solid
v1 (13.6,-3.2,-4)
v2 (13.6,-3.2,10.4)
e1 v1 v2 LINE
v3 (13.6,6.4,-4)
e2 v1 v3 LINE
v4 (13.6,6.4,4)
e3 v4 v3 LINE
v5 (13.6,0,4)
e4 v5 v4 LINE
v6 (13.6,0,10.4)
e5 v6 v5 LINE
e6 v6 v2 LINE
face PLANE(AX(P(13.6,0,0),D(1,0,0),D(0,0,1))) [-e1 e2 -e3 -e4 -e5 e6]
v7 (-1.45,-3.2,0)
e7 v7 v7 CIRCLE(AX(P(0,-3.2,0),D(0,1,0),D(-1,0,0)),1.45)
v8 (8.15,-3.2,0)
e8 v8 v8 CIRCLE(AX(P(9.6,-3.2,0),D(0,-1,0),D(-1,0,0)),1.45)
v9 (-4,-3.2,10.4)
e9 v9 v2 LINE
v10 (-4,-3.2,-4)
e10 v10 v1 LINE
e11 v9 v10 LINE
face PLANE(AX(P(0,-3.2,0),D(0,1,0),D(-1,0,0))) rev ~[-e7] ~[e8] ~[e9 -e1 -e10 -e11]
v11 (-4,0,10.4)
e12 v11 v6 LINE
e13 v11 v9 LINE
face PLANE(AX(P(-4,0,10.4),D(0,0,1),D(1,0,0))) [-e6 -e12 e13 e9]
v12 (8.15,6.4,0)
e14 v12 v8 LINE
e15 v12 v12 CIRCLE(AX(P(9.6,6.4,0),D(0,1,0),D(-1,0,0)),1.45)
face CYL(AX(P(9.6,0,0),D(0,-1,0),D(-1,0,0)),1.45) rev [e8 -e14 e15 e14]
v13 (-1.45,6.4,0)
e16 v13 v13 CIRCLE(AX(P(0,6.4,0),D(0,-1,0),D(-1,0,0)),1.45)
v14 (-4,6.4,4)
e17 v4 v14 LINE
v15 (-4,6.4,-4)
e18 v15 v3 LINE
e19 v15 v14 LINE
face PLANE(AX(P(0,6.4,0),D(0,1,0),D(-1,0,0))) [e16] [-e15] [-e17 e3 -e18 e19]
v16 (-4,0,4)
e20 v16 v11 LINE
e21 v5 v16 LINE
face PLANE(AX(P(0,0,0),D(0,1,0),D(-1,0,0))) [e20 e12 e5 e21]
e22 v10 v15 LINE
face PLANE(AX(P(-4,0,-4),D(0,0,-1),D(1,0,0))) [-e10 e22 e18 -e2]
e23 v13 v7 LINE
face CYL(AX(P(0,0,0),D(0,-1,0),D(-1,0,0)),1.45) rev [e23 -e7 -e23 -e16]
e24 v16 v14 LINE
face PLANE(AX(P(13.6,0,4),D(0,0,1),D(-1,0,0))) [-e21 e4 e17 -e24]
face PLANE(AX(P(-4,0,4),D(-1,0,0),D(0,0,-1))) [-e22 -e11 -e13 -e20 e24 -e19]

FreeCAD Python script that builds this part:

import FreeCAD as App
import Part
import Sketcher

V = App.Vector


def add_polygon(sketch, points):
    """Adds a closed chain of lines whose ends are joined by coincident constraints."""
    first, n = sketch.GeometryCount, len(points)
    for a, b in zip(points, points[1:] + points[:1]):
        sketch.addGeometry(Part.LineSegment(App.Vector(*a, 0), App.Vector(*b, 0)), False)
    for i in range(n):
        sketch.addConstraint(Sketcher.Constraint("Coincident", first + i, 2, first + (i + 1) % n, 1))

doc = App.newDocument("Part")
body = doc.addObject("PartDesign::Body", "Body")

sketch1 = doc.addObject("Sketcher::SketchObject", "Sketch")
body.addObject(sketch1)
sketch1.AttachmentSupport = (doc.XZ_Plane, [""])
sketch1.MapMode = "FlatFace"
add_polygon(sketch1, [(13.6, 4), (13.6, -4), (-4, -4), (-4, 4)])
sketch1.addGeometry(Part.Circle(V(9.6, 0, 0), V(0, 0, 1), 1.45), False)
sketch1.addGeometry(Part.Circle(V(0, 0, 0), V(0, 0, 1), 1.45), False)
sketch1.addConstraint([
    Sketcher.Constraint("Vertical", 0),
    Sketcher.Constraint("Horizontal", 1),
    Sketcher.Constraint("Vertical", 2),
    Sketcher.Constraint("Horizontal", 3),
    Sketcher.Constraint("Coincident", 5, 3, -1, 1),
    Sketcher.Constraint("Equal", 4, 5),
    Sketcher.Constraint("PointOnObject", 4, 3, -1),
    Sketcher.Constraint("Diameter", 4, 2.9),
    Sketcher.Constraint("DistanceY", 0, 2, -1, 1, 4.0),
    Sketcher.Constraint("DistanceX", 1, 2, -1, 1, 4.0),
    Sketcher.Constraint("DistanceY", -1, 1, 2, 2, 4.0),
    Sketcher.Constraint("DistanceX", 4, 3, 0, 2, 4.0),
    Sketcher.Constraint("DistanceX", -1, 1, 4, 3, 9.6),
])
pad1 = doc.addObject("PartDesign::Pad", "Pad")
body.addObject(pad1)
pad1.Profile = sketch1
pad1.Length = 6.4
pad1.Reversed = True

sketch2 = doc.addObject("Sketcher::SketchObject", "Sketch001")
body.addObject(sketch2)
sketch2.AttachmentSupport = (doc.XZ_Plane, [""])
sketch2.MapMode = "FlatFace"
add_polygon(sketch2, [(13.6, -4), (-4, -4), (-4, 10.4), (13.6, 10.4)])
sketch2.addGeometry(Part.Circle(V(9.6, 0, 0), V(0, 0, 1), 1.45), False)
sketch2.addGeometry(Part.Circle(V(0, 0, 0), V(0, 0, 1), 1.45), False)
sketch2.addConstraint([
    Sketcher.Constraint("Horizontal", 0),
    Sketcher.Constraint("Vertical", 1),
    Sketcher.Constraint("Horizontal", 2),
    Sketcher.Constraint("Vertical", 3),
    Sketcher.Constraint("Coincident", 5, 3, -1, 1),
    Sketcher.Constraint("Equal", 4, 5),
    Sketcher.Constraint("PointOnObject", 4, 3, -1),
    Sketcher.Constraint("Diameter", 4, 2.9),
    Sketcher.Constraint("DistanceX", 0, 2, -1, 1, 4.0),
    Sketcher.Constraint("DistanceY", 0, 2, -1, 1, 4.0),
    Sketcher.Constraint("DistanceX", 4, 3, 2, 2, 4.0),
    Sketcher.Constraint("DistanceX", -1, 1, 4, 3, 9.6),
    Sketcher.Constraint("DistanceY", 1, 1, 1, 2, 14.4),
])
pad2 = doc.addObject("PartDesign::Pad", "Pad001")
body.addObject(pad2)
pad2.Profile = sketch2
pad2.Length = 3.2

doc.recompute()
